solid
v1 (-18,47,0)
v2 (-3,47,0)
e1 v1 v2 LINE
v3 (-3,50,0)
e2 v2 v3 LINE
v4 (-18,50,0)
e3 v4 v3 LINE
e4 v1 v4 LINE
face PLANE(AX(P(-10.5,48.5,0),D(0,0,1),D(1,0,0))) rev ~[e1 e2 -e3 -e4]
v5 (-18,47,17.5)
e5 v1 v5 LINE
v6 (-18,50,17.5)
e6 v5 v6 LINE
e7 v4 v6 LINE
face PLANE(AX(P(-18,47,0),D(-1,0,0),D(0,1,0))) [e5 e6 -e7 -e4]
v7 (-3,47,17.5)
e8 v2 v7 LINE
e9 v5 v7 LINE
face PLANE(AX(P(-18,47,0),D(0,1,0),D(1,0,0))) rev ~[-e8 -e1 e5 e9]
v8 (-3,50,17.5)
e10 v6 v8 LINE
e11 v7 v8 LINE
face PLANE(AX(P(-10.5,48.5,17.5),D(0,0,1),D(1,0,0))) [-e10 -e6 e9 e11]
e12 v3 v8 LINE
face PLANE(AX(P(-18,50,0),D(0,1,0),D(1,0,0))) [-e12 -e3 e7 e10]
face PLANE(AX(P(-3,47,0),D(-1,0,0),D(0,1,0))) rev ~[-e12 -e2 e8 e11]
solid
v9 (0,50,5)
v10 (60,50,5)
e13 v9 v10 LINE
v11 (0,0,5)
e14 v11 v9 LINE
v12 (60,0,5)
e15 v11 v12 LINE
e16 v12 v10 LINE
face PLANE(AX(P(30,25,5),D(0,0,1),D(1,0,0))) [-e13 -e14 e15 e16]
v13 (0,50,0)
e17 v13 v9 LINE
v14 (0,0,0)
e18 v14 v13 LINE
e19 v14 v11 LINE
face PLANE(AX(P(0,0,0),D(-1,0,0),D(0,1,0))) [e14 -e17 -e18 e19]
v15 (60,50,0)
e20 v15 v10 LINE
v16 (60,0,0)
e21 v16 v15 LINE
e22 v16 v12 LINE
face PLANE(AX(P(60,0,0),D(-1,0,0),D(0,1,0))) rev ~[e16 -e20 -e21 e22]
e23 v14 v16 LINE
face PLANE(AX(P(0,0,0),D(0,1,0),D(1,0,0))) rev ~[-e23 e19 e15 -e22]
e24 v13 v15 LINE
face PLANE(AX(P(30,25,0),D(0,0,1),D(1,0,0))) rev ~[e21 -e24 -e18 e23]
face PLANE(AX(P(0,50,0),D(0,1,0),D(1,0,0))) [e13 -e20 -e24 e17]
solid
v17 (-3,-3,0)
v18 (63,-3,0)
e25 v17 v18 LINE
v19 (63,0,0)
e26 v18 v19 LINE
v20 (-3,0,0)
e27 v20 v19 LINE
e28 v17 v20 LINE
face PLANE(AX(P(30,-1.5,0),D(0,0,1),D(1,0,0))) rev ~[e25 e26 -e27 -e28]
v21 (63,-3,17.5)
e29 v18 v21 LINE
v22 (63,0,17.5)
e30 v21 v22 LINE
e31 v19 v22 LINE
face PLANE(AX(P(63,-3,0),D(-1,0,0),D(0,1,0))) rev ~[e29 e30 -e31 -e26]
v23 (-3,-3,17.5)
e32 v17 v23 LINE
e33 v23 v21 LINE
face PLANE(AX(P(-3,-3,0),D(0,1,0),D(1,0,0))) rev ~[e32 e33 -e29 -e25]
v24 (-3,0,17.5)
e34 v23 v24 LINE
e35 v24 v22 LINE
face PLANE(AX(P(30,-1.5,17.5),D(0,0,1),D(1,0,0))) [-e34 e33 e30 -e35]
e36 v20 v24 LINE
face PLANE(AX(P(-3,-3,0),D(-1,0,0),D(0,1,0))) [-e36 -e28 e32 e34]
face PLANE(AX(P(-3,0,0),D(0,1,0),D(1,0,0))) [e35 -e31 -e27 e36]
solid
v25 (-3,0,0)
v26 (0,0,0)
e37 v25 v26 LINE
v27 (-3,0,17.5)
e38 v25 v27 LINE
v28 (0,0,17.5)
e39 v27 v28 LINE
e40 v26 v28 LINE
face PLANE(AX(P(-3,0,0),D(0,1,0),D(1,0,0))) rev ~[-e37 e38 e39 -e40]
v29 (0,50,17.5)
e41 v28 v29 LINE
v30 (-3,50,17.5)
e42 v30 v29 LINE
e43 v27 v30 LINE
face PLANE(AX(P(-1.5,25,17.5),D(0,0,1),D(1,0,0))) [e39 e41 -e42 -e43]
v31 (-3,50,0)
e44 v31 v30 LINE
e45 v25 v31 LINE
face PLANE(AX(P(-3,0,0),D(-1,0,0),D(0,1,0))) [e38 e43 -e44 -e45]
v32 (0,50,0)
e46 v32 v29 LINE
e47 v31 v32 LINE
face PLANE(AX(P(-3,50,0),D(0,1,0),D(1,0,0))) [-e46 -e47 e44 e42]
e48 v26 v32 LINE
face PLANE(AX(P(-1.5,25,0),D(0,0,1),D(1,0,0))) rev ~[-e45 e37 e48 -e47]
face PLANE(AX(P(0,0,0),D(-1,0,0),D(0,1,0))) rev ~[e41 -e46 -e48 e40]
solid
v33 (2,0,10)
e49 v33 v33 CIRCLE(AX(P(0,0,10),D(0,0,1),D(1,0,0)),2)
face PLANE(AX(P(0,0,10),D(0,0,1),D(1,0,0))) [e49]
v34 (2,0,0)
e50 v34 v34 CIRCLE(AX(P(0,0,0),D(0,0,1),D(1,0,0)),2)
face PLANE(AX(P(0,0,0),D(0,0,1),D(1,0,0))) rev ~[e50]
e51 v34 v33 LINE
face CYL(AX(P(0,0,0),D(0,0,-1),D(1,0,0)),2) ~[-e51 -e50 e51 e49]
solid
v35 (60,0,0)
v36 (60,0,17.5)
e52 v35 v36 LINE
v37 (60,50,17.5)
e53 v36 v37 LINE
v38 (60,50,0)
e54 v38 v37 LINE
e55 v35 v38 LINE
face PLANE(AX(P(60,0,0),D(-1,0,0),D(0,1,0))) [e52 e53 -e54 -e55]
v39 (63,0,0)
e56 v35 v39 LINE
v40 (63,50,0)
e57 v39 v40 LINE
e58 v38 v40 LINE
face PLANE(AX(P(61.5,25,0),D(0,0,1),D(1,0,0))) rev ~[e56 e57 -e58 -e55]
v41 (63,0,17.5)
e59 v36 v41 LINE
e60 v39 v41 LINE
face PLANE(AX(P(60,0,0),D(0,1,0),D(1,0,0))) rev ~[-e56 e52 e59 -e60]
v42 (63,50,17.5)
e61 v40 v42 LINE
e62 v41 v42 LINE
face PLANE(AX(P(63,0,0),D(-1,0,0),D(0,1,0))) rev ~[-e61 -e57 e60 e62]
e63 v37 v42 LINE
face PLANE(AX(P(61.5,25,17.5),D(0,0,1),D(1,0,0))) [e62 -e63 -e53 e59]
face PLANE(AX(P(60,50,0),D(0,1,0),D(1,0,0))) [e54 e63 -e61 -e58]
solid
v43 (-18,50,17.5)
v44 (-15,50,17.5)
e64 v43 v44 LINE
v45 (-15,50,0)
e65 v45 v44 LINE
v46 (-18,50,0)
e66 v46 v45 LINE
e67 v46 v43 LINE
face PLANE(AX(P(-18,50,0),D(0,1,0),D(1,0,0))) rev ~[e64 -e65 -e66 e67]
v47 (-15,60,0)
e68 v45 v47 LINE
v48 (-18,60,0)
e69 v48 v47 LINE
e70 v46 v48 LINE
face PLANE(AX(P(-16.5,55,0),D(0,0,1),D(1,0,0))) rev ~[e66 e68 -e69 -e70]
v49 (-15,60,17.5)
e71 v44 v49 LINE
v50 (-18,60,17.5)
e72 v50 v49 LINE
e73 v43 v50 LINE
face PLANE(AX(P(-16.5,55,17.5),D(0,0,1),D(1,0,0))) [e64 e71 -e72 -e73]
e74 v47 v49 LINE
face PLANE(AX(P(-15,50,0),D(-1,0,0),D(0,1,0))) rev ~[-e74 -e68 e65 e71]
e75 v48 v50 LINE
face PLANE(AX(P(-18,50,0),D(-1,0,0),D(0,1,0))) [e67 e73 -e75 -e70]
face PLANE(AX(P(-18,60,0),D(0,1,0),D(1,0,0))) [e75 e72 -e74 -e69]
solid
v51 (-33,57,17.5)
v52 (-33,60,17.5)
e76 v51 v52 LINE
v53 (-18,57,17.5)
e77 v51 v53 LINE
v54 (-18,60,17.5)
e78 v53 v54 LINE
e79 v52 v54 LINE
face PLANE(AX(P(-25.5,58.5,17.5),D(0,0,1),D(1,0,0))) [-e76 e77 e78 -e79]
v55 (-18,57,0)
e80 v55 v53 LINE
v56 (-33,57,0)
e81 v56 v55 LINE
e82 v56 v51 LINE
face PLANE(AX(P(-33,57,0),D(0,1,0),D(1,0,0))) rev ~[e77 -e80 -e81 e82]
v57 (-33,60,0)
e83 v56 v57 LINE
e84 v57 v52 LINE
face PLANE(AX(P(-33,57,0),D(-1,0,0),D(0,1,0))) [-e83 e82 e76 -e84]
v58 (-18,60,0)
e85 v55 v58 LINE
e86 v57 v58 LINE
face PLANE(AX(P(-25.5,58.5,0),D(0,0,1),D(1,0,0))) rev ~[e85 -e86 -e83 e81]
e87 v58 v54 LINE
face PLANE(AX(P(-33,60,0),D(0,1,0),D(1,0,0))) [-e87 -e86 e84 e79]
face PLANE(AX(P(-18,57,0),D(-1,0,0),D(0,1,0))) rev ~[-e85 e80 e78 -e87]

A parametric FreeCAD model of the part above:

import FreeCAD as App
import Part
import Sketcher

V = App.Vector

doc = App.newDocument("Part")
body = doc.addObject("PartDesign::Body", "Body")

# Sketch on XY plane
sketch1 = body.newObject("Sketcher::SketchObject", "Sketch")
sketch1.AttachmentSupport = (doc.getObject("XY_Plane"), [""])
sketch1.MapMode = "FlatFace"
sketch1.addGeometry([
    Part.LineSegment(V(0, 50, 0), V(0, 0, 0)),
    Part.LineSegment(V(0, 0, 0), V(60, 0, 0)),
    Part.LineSegment(V(60, 0, 0), V(60, 50, 0)),
    Part.LineSegment(V(60, 50, 0), V(0, 50, 0)),
], False)
sketch1.addConstraint([
    Sketcher.Constraint("Coincident", 0, 2, 1, 1),
    Sketcher.Constraint("Coincident", 1, 2, 2, 1),
    Sketcher.Constraint("Coincident", 2, 2, 3, 1),
    Sketcher.Constraint("Coincident", 3, 2, 0, 1),
    Sketcher.Constraint("Vertical", 0),
    Sketcher.Constraint("Horizontal", 1),
    Sketcher.Constraint("Vertical", 2),
    Sketcher.Constraint("Horizontal", 3),
    Sketcher.Constraint("Coincident", 0, 2, -1, 1),
    Sketcher.Constraint("DistanceX", 1, 1, 1, 2, 60.0),
    Sketcher.Constraint("DistanceY", 0, 2, 0, 1, 50.0),
])
pad1 = body.newObject("PartDesign::Pad", "Pad")
pad1.Profile = sketch1
pad1.Length = 5
body2 = doc.addObject("PartDesign::Body", "Body001")

# Sketch on XY plane
sketch2 = body2.newObject("Sketcher::SketchObject", "Sketch001")
sketch2.AttachmentSupport = (doc.getObject("XY_Plane001"), [""])
sketch2.MapMode = "FlatFace"
sketch2.addGeometry([
    Part.LineSegment(V(60, 50, 0), V(60, 0, 0)),
    Part.LineSegment(V(60, 0, 0), V(63, 0, 0)),
    Part.LineSegment(V(63, 0, 0), V(63, 50, 0)),
    Part.LineSegment(V(63, 50, 0), V(60, 50, 0)),
], False)
sketch2.addConstraint([
    Sketcher.Constraint("Coincident", 0, 2, 1, 1),
    Sketcher.Constraint("Coincident", 1, 2, 2, 1),
    Sketcher.Constraint("Coincident", 2, 2, 3, 1),
    Sketcher.Constraint("Coincident", 3, 2, 0, 1),
    Sketcher.Constraint("Vertical", 0),
    Sketcher.Constraint("Horizontal", 1),
    Sketcher.Constraint("Vertical", 2),
    Sketcher.Constraint("Horizontal", 3),
    Sketcher.Constraint("PointOnObject", 0, 2, -1),
    Sketcher.Constraint("DistanceX", 1, 1, 1, 2, 3.0),
    Sketcher.Constraint("DistanceY", 0, 2, 0, 1, 50.0),
    Sketcher.Constraint("DistanceX", -1, 1, 0, 2, 60.0),
])
pad2 = body2.newObject("PartDesign::Pad", "Pad001")
pad2.Profile = sketch2
pad2.Length = 17.5
body3 = doc.addObject("PartDesign::Body", "Body002")

# Sketch on XY plane
sketch3 = body3.newObject("Sketcher::SketchObject", "Sketch002")
sketch3.AttachmentSupport = (doc.getObject("XY_Plane002"), [""])
sketch3.MapMode = "FlatFace"
sketch3.addGeometry([
    Part.LineSegment(V(-3, 50, 0), V(-3, 0, 0)),
    Part.LineSegment(V(-3, 0, 0), V(0, 0, 0)),
    Part.LineSegment(V(0, 0, 0), V(0, 50, 0)),
    Part.LineSegment(V(0, 50, 0), V(-3, 50, 0)),
], False)
sketch3.addConstraint([
    Sketcher.Constraint("Coincident", 0, 2, 1, 1),
    Sketcher.Constraint("Coincident", 1, 2, 2, 1),
    Sketcher.Constraint("Coincident", 2, 2, 3, 1),
    Sketcher.Constraint("Coincident", 3, 2, 0, 1),
    Sketcher.Constraint("Vertical", 0),
    Sketcher.Constraint("Horizontal", 1),
    Sketcher.Constraint("Vertical", 2),
    Sketcher.Constraint("Horizontal", 3),
    Sketcher.Constraint("Coincident", 1, 2, -1, 1),
    Sketcher.Constraint("DistanceX", 1, 1, 1, 2, 3.0),
    Sketcher.Constraint("DistanceY", 0, 2, 0, 1, 50.0),
])
pad3 = body3.newObject("PartDesign::Pad", "Pad002")
pad3.Profile = sketch3
pad3.Length = 17.5
body4 = doc.addObject("PartDesign::Body", "Body003")

# Sketch on XY plane
sketch4 = body4.newObject("Sketcher::SketchObject", "Sketch003")
sketch4.AttachmentSupport = (doc.getObject("XY_Plane003"), [""])
sketch4.MapMode = "FlatFace"
sketch4.addGeometry([
    Part.LineSegment(V(-18, 50, 0), V(-18, 47, 0)),
    Part.LineSegment(V(-18, 47, 0), V(-3, 47, 0)),
    Part.LineSegment(V(-3, 47, 0), V(-3, 50, 0)),
    Part.LineSegment(V(-3, 50, 0), V(-18, 50, 0)),
], False)
sketch4.addConstraint([
    Sketcher.Constraint("Coincident", 0, 2, 1, 1),
    Sketcher.Constraint("Coincident", 1, 2, 2, 1),
    Sketcher.Constraint("Coincident", 2, 2, 3, 1),
    Sketcher.Constraint("Coincident", 3, 2, 0, 1),
    Sketcher.Constraint("Vertical", 0),
    Sketcher.Constraint("Horizontal", 1),
    Sketcher.Constraint("Vertical", 2),
    Sketcher.Constraint("Horizontal", 3),
    Sketcher.Constraint("DistanceX", 1, 1, 1, 2, 15.0),
    Sketcher.Constraint("DistanceY", 0, 2, 0, 1, 3.0),
    Sketcher.Constraint("DistanceX", 0, 2, -1, 1, 18.0),
    Sketcher.Constraint("DistanceY", -1, 1, 0, 2, 47.0),
])
pad4 = body4.newObject("PartDesign::Pad", "Pad003")
pad4.Profile = sketch4
pad4.Length = 17.5
body5 = doc.addObject("PartDesign::Body", "Body004")

# Sketch on XY plane
sketch5 = body5.newObject("Sketcher::SketchObject", "Sketch004")
sketch5.AttachmentSupport = (doc.getObject("XY_Plane004"), [""])
sketch5.MapMode = "FlatFace"
sketch5.addGeometry([
    Part.LineSegment(V(-3, 0, 0), V(-3, -3, 0)),
    Part.LineSegment(V(-3, -3, 0), V(63, -3, 0)),
    Part.LineSegment(V(63, -3, 0), V(63, 0, 0)),
    Part.LineSegment(V(63, 0, 0), V(-3, 0, 0)),
], False)
sketch5.addConstraint([
    Sketcher.Constraint("Coincident", 0, 2, 1, 1),
    Sketcher.Constraint("Coincident", 1, 2, 2, 1),
    Sketcher.Constraint("Coincident", 2, 2, 3, 1),
    Sketcher.Constraint("Coincident", 3, 2, 0, 1),
    Sketcher.Constraint("Vertical", 0),
    Sketcher.Constraint("Horizontal", 1),
    Sketcher.Constraint("Vertical", 2),
    Sketcher.Constraint("Horizontal", 3),
    Sketcher.Constraint("PointOnObject", 2, 2, -1),
    Sketcher.Constraint("DistanceX", 1, 1, 1, 2, 66.0),
    Sketcher.Constraint("DistanceY", 0, 2, 0, 1, 3.0),
    Sketcher.Constraint("DistanceX", 0, 2, -1, 1, 3.0),
])
pad5 = body5.newObject("PartDesign::Pad", "Pad004")
pad5.Profile = sketch5
pad5.Length = 17.5
body6 = doc.addObject("PartDesign::Body", "Body005")

# Sketch on XY plane
sketch6 = body6.newObject("Sketcher::SketchObject", "Sketch005")
sketch6.AttachmentSupport = (doc.getObject("XY_Plane005"), [""])
sketch6.MapMode = "FlatFace"
sketch6.addGeometry([
    Part.LineSegment(V(-18, 60, 0), V(-18, 50, 0)),
    Part.LineSegment(V(-18, 50, 0), V(-15, 50, 0)),
    Part.LineSegment(V(-15, 50, 0), V(-15, 60, 0)),
    Part.LineSegment(V(-15, 60, 0), V(-18, 60, 0)),
], False)
sketch6.addConstraint([
    Sketcher.Constraint("Coincident", 0, 2, 1, 1),
    Sketcher.Constraint("Coincident", 1, 2, 2, 1),
    Sketcher.Constraint("Coincident", 2, 2, 3, 1),
    Sketcher.Constraint("Coincident", 3, 2, 0, 1),
    Sketcher.Constraint("Vertical", 0),
    Sketcher.Constraint("Horizontal", 1),
    Sketcher.Constraint("Vertical", 2),
    Sketcher.Constraint("Horizontal", 3),
    Sketcher.Constraint("DistanceX", 1, 1, 1, 2, 3.0),
    Sketcher.Constraint("DistanceY", 0, 2, 0, 1, 10.0),
    Sketcher.Constraint("DistanceX", 0, 2, -1, 1, 18.0),
    Sketcher.Constraint("DistanceY", -1, 1, 0, 2, 50.0),
])
pad6 = body6.newObject("PartDesign::Pad", "Pad005")
pad6.Profile = sketch6
pad6.Length = 17.5
body7 = doc.addObject("PartDesign::Body", "Body006")

# Sketch on XY plane
sketch7 = body7.newObject("Sketcher::SketchObject", "Sketch006")
sketch7.AttachmentSupport = (doc.getObject("XY_Plane006"), [""])
sketch7.MapMode = "FlatFace"
sketch7.addGeometry([
    Part.LineSegment(V(-33, 60, 0), V(-33, 57, 0)),
    Part.LineSegment(V(-33, 57, 0), V(-18, 57, 0)),
    Part.LineSegment(V(-18, 57, 0), V(-18, 60, 0)),
    Part.LineSegment(V(-18, 60, 0), V(-33, 60, 0)),
], False)
sketch7.addConstraint([
    Sketcher.Constraint("Coincident", 0, 2, 1, 1),
    Sketcher.Constraint("Coincident", 1, 2, 2, 1),
    Sketcher.Constraint("Coincident", 2, 2, 3, 1),
    Sketcher.Constraint("Coincident", 3, 2, 0, 1),
    Sketcher.Constraint("Vertical", 0),
    Sketcher.Constraint("Horizontal", 1),
    Sketcher.Constraint("Vertical", 2),
    Sketcher.Constraint("Horizontal", 3),
    Sketcher.Constraint("DistanceX", 1, 1, 1, 2, 15.0),
    Sketcher.Constraint("DistanceY", 0, 2, 0, 1, 3.0),
    Sketcher.Constraint("DistanceX", 0, 2, -1, 1, 33.0),
    Sketcher.Constraint("DistanceY", -1, 1, 0, 2, 57.0),
])
pad7 = body7.newObject("PartDesign::Pad", "Pad006")
pad7.Profile = sketch7
pad7.Length = 17.5
body8 = doc.addObject("PartDesign::Body", "Body007")

# Sketch on XY plane
sketch8 = body8.newObject("Sketcher::SketchObject", "Sketch007")
sketch8.AttachmentSupport = (doc.getObject("XY_Plane007"), [""])
sketch8.MapMode = "FlatFace"
sketch8.addGeometry(Part.Circle(V(0, 0, 0), V(0, 0, 1), 2), False)
sketch8.addConstraint([
    Sketcher.Constraint("Coincident", 0, 3, -1, 1),
    Sketcher.Constraint("Diameter", 0, 4.0),
])
pad8 = body8.newObject("PartDesign::Pad", "Pad007")
pad8.Profile = sketch8
pad8.Length = 10

doc.recompute()
